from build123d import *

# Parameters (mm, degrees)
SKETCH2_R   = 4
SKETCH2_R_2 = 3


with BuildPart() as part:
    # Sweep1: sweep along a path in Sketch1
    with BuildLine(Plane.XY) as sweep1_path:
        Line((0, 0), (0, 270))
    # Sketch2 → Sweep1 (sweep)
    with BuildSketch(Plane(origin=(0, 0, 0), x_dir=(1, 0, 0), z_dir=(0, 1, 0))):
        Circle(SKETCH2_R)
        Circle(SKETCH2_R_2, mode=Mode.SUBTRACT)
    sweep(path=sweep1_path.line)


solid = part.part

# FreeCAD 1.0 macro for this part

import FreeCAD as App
import Part
import Sketcher

doc = App.newDocument("Part")
body = doc.addObject("PartDesign::Body", "Body")

# Sketch on XZ plane
sketch1 = doc.addObject("Sketcher::SketchObject", "Sketch")
body.addObject(sketch1)
sketch1.AttachmentSupport = (doc.XZ_Plane, [""])
sketch1.MapMode = "FlatFace"
sketch1.addGeometry([
    Part.Circle(App.Vector(0, 0, 0), App.Vector(0, 0, 1), 4),
    Part.Circle(App.Vector(0, 0, 0), App.Vector(0, 0, 1), 3),
], False)
sketch1.addConstraint([
    Sketcher.Constraint("Coincident", 0, 3, -1, 1),
    Sketcher.Constraint("Coincident", 1, 3, -1, 1),
    Sketcher.Constraint("Diameter", 0, 8.0),
    Sketcher.Constraint("Diameter", 1, 6.0),
])

# Sketch on XY plane
sketch2 = doc.addObject("Sketcher::SketchObject", "Sketch001")
body.addObject(sketch2)
sketch2.AttachmentSupport = (doc.XY_Plane, [""])
sketch2.MapMode = "FlatFace"
sketch2.addGeometry(Part.LineSegment(App.Vector(0, 0, 0), App.Vector(0, 270, 0)), False)
sketch2.addConstraint([
    Sketcher.Constraint("Vertical", 0),
    Sketcher.Constraint("Coincident", 0, 1, -1, 1),
    Sketcher.Constraint("DistanceY", 0, 1, 0, 2, 270.0),
])
doc.recompute()

additivepipe = doc.addObject("PartDesign::AdditivePipe", "AdditivePipe")
body.addObject(additivepipe)
additivepipe.Profile = sketch1
additivepipe.Spine = (sketch2, ["Edge1"])

doc.recompute()
